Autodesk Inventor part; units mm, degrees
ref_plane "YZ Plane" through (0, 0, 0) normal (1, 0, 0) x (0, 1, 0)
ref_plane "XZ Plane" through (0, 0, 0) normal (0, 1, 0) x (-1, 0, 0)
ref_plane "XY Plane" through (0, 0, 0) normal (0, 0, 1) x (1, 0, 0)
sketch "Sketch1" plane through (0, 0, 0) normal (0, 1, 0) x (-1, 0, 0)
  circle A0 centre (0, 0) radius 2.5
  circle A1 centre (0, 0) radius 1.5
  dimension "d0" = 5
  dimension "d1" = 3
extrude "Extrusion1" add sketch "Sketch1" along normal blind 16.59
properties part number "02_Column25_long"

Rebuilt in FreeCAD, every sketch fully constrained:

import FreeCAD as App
import Part
import Sketcher
from FreeCAD import Vector

doc = App.newDocument("Part")
body = doc.addObject("PartDesign::Body", "Body")

sketch1 = body.newObject("Sketcher::SketchObject", "Sketch")
sketch1.AttachmentSupport = (doc.getObject("XZ_Plane"), [""])
sketch1.MapMode = "FlatFace"
sketch1.addGeometry(Part.Circle(Vector(0, 0, 0), Vector(0, 0, 1), 2.5), False)
sketch1.addGeometry(Part.Circle(Vector(0, 0, 0), Vector(0, 0, 1), 1.5), False)
sketch1.addConstraint(Sketcher.Constraint("Coincident", 0, 3, -1, 1))
sketch1.addConstraint(Sketcher.Constraint("Coincident", 1, 3, -1, 1))
sketch1.addConstraint(Sketcher.Constraint("Diameter", 0, 5.0))
sketch1.addConstraint(Sketcher.Constraint("Diameter", 1, 3.0))
pad1 = body.newObject("PartDesign::Pad", "Pad")
pad1.Profile = sketch1
pad1.Length = 16.59
pad1.Reversed = True

doc.recompute()
